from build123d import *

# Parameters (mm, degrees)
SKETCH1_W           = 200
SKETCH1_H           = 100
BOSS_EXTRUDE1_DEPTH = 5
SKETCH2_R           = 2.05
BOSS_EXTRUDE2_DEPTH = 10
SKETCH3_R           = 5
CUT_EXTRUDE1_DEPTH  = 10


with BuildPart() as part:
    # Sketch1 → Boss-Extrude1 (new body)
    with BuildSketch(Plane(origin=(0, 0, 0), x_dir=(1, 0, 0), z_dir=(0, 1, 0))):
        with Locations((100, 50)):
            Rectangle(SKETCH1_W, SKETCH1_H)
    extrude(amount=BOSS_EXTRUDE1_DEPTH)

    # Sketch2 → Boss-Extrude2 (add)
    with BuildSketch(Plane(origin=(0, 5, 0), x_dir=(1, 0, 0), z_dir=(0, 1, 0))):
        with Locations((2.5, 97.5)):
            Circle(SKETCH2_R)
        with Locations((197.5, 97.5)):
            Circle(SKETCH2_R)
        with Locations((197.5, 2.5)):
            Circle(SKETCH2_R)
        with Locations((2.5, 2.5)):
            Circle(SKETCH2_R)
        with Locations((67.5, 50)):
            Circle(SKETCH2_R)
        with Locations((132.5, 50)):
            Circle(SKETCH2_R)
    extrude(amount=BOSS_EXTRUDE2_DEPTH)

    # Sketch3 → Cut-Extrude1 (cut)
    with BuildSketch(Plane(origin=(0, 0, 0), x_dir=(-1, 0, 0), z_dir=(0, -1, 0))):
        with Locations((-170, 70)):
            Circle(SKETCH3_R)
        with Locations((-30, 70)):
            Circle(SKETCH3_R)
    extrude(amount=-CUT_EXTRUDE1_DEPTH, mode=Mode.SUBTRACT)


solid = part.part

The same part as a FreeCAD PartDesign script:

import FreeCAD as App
import Part
import Sketcher

V = App.Vector
Q = App.Units.Quantity


def add_polygon(sketch, points):
    """Adds a closed chain of lines whose ends are joined by coincident constraints."""
    first, n = sketch.GeometryCount, len(points)
    for a, b in zip(points, points[1:] + points[:1]):
        sketch.addGeometry(Part.LineSegment(App.Vector(*a, 0), App.Vector(*b, 0)), False)
    for i in range(n):
        sketch.addConstraint(Sketcher.Constraint("Coincident", first + i, 2, first + (i + 1) % n, 1))

doc = App.newDocument("Part")
body = doc.addObject("PartDesign::Body", "Body")

# Sketch on XZ plane
sketch1 = doc.addObject("Sketcher::SketchObject", "Sketch")
body.addObject(sketch1)
sketch1.AttachmentSupport = (doc.XZ_Plane, [""])
sketch1.MapMode = "FlatFace"
add_polygon(sketch1, [(0, -100), (0, 0), (200, 0), (200, -100)])  # lines 0-3
sketch1.addConstraint([
    Sketcher.Constraint("Vertical", 0),
    Sketcher.Constraint("Horizontal", 1),
    Sketcher.Constraint("Vertical", 2),
    Sketcher.Constraint("Horizontal", 3),
    Sketcher.Constraint("Coincident", 0, 2, -1, 1),
    Sketcher.Constraint("DistanceX", 1, 1, 1, 2, Q("200 mm")),
    Sketcher.Constraint("DistanceY", 0, 1, 0, 2, Q("100 mm")),
])
pad1 = doc.addObject("PartDesign::Pad", "Pad")
body.addObject(pad1)
pad1.Profile = sketch1
pad1.Length = 5
pad1.Reversed = True

# Sketch on XZ plane
sketch2 = doc.addObject("Sketcher::SketchObject", "Sketch001")
body.addObject(sketch2)
sketch2.AttachmentSupport = (doc.XZ_Plane, [""])
sketch2.MapMode = "FlatFace"
sketch2.AttachmentOffset = App.Placement(V(0, 0, -5), App.Rotation())
sketch2.addGeometry([
    Part.Circle(V(2.5, -97.5, 0), V(0, 0, 1), 2),  # 0
    Part.Circle(V(197.5, -97.5, 0), V(0, 0, 1), 2),  # 1
    Part.Circle(V(197.5, -2.5, 0), V(0, 0, 1), 2),  # 2
    Part.Circle(V(2.5, -2.5, 0), V(0, 0, 1), 2),  # 3
    Part.Circle(V(67.5, -50, 0), V(0, 0, 1), 2),  # 4
    Part.Circle(V(132.5, -50, 0), V(0, 0, 1), 2),  # 5
], False)
sketch2.addConstraint([
    Sketcher.Constraint("Equal", 0, 1),
    Sketcher.Constraint("Equal", 1, 2),
    Sketcher.Constraint("Equal", 2, 3),
    Sketcher.Constraint("Equal", 3, 4),
    Sketcher.Constraint("Equal", 4, 5),
    Sketcher.Constraint("Horizontal", 0, 3, 1, 3),
    Sketcher.Constraint("Horizontal", 2, 3, 3, 3),
    Sketcher.Constraint("Horizontal", 4, 3, 5, 3),
    Sketcher.Constraint("Vertical", 1, 3, 2, 3),
    Sketcher.Constraint("Vertical", 0, 3, 3, 3),
    Sketcher.Constraint("Diameter", 0, Q("4.1 mm")),
    Sketcher.Constraint("DistanceY", 4, 3, -1, 1, Q("50 mm")),
    Sketcher.Constraint("DistanceX", 0, 3, 1, 3, Q("195 mm")),
    Sketcher.Constraint("DistanceY", 1, 3, 2, 3, Q("95 mm")),
    Sketcher.Constraint("DistanceX", 0, 3, 4, 3, Q("65 mm")),
    Sketcher.Constraint("DistanceX", 4, 3, 5, 3, Q("65 mm")),
    Sketcher.Constraint("DistanceX", -1, 1, 0, 3, Q("2.5 mm")),
    Sketcher.Constraint("DistanceY", 0, 3, -1, 1, Q("97.5 mm")),
])
pad2 = doc.addObject("PartDesign::Pad", "Pad001")
body.addObject(pad2)
pad2.Profile = sketch2
pad2.Length = 10
pad2.Reversed = True

# Sketch on XZ plane
sketch3 = doc.addObject("Sketcher::SketchObject", "Sketch002")
body.addObject(sketch3)
sketch3.AttachmentSupport = (doc.XZ_Plane, [""])
sketch3.MapMode = "FlatFace"
sketch3.addGeometry([
    Part.Circle(V(170, -70, 0), V(0, 0, 1), 5),
    Part.Circle(V(30, -70, 0), V(0, 0, 1), 5),
], False)
sketch3.addConstraint([
    Sketcher.Constraint("Equal", 0, 1),
    Sketcher.Constraint("Horizontal", 0, 3, 1, 3),
    Sketcher.Constraint("Diameter", 0, Q("10 mm")),
    Sketcher.Constraint("DistanceX", -1, 1, 0, 3, Q("170 mm")),
    Sketcher.Constraint("DistanceY", 0, 3, -1, 1, Q("70 mm")),
    Sketcher.Constraint("DistanceX", -1, 1, 1, 3, Q("30 mm")),
])
pocket1 = doc.addObject("PartDesign::Pocket", "Pocket")
body.addObject(pocket1)
pocket1.Profile = sketch3
pocket1.Length = 10

doc.recompute()
